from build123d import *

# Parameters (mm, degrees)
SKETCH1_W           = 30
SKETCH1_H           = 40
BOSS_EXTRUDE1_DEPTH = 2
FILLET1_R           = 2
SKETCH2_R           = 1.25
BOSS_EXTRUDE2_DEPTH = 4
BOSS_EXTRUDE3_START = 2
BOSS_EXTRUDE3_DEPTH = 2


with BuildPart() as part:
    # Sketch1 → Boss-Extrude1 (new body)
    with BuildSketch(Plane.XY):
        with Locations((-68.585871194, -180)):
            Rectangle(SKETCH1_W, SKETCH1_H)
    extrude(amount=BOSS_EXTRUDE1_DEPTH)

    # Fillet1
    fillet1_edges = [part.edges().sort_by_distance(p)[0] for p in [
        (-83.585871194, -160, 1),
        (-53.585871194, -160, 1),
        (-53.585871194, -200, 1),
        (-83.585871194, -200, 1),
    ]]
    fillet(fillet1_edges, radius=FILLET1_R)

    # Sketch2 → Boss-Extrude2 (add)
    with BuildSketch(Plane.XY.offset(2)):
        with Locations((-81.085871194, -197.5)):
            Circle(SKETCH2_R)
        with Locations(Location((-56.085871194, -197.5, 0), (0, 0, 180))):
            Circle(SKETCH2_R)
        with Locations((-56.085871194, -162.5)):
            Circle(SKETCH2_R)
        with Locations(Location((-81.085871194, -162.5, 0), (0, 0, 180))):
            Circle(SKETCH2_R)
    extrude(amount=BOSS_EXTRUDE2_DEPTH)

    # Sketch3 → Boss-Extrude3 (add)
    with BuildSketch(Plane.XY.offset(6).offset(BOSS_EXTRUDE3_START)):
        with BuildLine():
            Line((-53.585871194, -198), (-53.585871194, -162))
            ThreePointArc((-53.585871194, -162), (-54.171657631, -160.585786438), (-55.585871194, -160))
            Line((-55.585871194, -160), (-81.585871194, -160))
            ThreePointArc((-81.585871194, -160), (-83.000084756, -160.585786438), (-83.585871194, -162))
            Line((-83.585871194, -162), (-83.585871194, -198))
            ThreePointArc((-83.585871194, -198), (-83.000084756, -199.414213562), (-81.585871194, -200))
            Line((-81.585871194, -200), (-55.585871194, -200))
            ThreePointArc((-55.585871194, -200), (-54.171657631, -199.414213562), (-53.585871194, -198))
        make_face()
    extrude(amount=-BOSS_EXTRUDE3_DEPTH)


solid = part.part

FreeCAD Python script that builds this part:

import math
import FreeCAD as App
import Part
import Sketcher

V = App.Vector
Q = App.Units.Quantity


def edges_at(feature, points):
    """Names of the edges that pass closest to the given points."""
    edges = feature.Shape.Edges
    near = lambda p: min(range(len(edges)), key=lambda i: edges[i].distToShape(Part.Vertex(*p))[0])
    return sorted({f"Edge{near(p) + 1}" for p in points})

doc = App.newDocument("Part")
params = doc.addObject("Spreadsheet::Sheet", "Params")
for row, (alias, value) in enumerate([
    ("sketch1_width", "30 mm"),
    ("sketch1_height", "40 mm"),
    ("pad1_length", "2 mm"),
    ("fillet_radius", "2 mm"),
    ("sketch2_diameter", "2.5 mm"),
    ("pad2_length", "4 mm"),
    ("sketch3_radius", "2 mm"),
    ("sketch3_width", "26 mm"),
    ("sketch3_height", "36 mm"),
    ("pad3_length", "2 mm"),
], start=1):
    params.set(f"A{row}", alias)
    params.set(f"B{row}", "=" + value)
    params.setAlias(f"B{row}", alias)

body = doc.addObject("PartDesign::Body", "Body")

sketch1 = body.newObject("Sketcher::SketchObject", "Sketch")
sketch1.AttachmentSupport = (doc.getObject("XY_Plane"), [""])
sketch1.MapMode = "FlatFace"
sketch1.addGeometry(Part.LineSegment(V(-84, -160, 0), V(-84, -200, 0)), False)
sketch1.addGeometry(Part.LineSegment(V(-84, -200, 0), V(-54, -200, 0)), False)
sketch1.addGeometry(Part.LineSegment(V(-54, -200, 0), V(-54, -160, 0)), False)
sketch1.addGeometry(Part.LineSegment(V(-54, -160, 0), V(-84, -160, 0)), False)
sketch1.addConstraint(Sketcher.Constraint("Coincident", 0, 2, 1, 1))
sketch1.addConstraint(Sketcher.Constraint("Coincident", 1, 2, 2, 1))
sketch1.addConstraint(Sketcher.Constraint("Coincident", 2, 2, 3, 1))
sketch1.addConstraint(Sketcher.Constraint("Coincident", 3, 2, 0, 1))
sketch1.addConstraint(Sketcher.Constraint("Vertical", 0))
sketch1.addConstraint(Sketcher.Constraint("Horizontal", 1))
sketch1.addConstraint(Sketcher.Constraint("Vertical", 2))
sketch1.addConstraint(Sketcher.Constraint("Horizontal", 3))
sketch1.addConstraint(Sketcher.Constraint("DistanceX", 1, 1, 1, 2, Q("30 mm")))
sketch1.addConstraint(Sketcher.Constraint("DistanceY", 0, 2, 0, 1, Q("40 mm")))
sketch1.addConstraint(Sketcher.Constraint("DistanceY", 0, 2, -1, 1, Q("200 mm")))
sketch1.addConstraint(Sketcher.Constraint("DistanceX", 0, 2, -1, 1, Q("83.585871 mm")))
sketch1.setExpression("Constraints[8]", "Params.sketch1_width")
sketch1.setExpression("Constraints[9]", "Params.sketch1_height")
pad1 = body.newObject("PartDesign::Pad", "Pad")
pad1.Profile = sketch1
pad1.setExpression("Length", "Params.pad1_length")
doc.recompute()

fillet = body.newObject("PartDesign::Fillet", "Fillet")
fillet.Base = (pad1, edges_at(pad1, [
    (-83.586, -160, 1),
    (-53.586, -160, 1),
    (-53.586, -200, 1),
    (-83.586, -200, 1),
]))
fillet.setExpression("Radius", "Params.fillet_radius")

sketch2 = body.newObject("Sketcher::SketchObject", "Sketch001")
sketch2.AttachmentSupport = (doc.getObject("XY_Plane"), [""])
sketch2.MapMode = "FlatFace"
sketch2.AttachmentOffset = App.Placement(V(0, 0, 2), App.Rotation())
sketch2.addGeometry(Part.Circle(V(-81.1, -197.5, 0), V(0, 0, 1), 1.2), False)
sketch2.addGeometry(Part.Circle(V(-56.1, -197.5, 0), V(0, 0, 1), 1.2), False)
sketch2.addGeometry(Part.Circle(V(-56.1, -162.5, 0), V(0, 0, 1), 1.2), False)
sketch2.addGeometry(Part.Circle(V(-81.1, -162.5, 0), V(0, 0, 1), 1.2), False)
sketch2.addConstraint(Sketcher.Constraint("Equal", 0, 1))
sketch2.addConstraint(Sketcher.Constraint("Equal", 1, 2))
sketch2.addConstraint(Sketcher.Constraint("Equal", 2, 3))
sketch2.addConstraint(Sketcher.Constraint("Horizontal", 0, 3, 1, 3))
sketch2.addConstraint(Sketcher.Constraint("Horizontal", 2, 3, 3, 3))
sketch2.addConstraint(Sketcher.Constraint("Vertical", 1, 3, 2, 3))
sketch2.addConstraint(Sketcher.Constraint("Vertical", 0, 3, 3, 3))
sketch2.addConstraint(Sketcher.Constraint("Diameter", 0, Q("2.5 mm")))
sketch2.addConstraint(Sketcher.Constraint("DistanceX", 0, 3, 1, 3, Q("25 mm")))
sketch2.addConstraint(Sketcher.Constraint("DistanceY", 1, 3, 2, 3, Q("35 mm")))
sketch2.addConstraint(Sketcher.Constraint("DistanceY", 0, 3, -1, 1, Q("197.5 mm")))
sketch2.addConstraint(Sketcher.Constraint("DistanceX", 0, 3, -1, 1, Q("81.085871 mm")))
sketch2.setExpression("Constraints[7]", "Params.sketch2_diameter")
pad2 = body.newObject("PartDesign::Pad", "Pad001")
pad2.Profile = sketch2
pad2.setExpression("Length", "Params.pad2_length")

sketch3 = body.newObject("Sketcher::SketchObject", "Sketch002")
sketch3.AttachmentSupport = (doc.getObject("XY_Plane"), [""])
sketch3.MapMode = "FlatFace"
sketch3.AttachmentOffset = App.Placement(V(0, 0, 8), App.Rotation())
sketch3.addGeometry(Part.LineSegment(V(-53.6, -198, 0), V(-53.6, -162, 0)), False)
sketch3.addGeometry(Part.ArcOfCircle(Part.Circle(V(-55.6, -162, 0), V(0, 0, 1), 2), math.radians(0), math.radians(90)), False)
sketch3.addGeometry(Part.LineSegment(V(-55.6, -160, 0), V(-81.6, -160, 0)), False)
sketch3.addGeometry(Part.ArcOfCircle(Part.Circle(V(-81.6, -162, 0), V(0, 0, 1), 2), math.radians(90), math.radians(180)), False)
sketch3.addGeometry(Part.LineSegment(V(-83.6, -162, 0), V(-83.6, -198, 0)), False)
sketch3.addGeometry(Part.ArcOfCircle(Part.Circle(V(-81.6, -198, 0), V(0, 0, 1), 2), math.radians(-180), math.radians(-90)), False)
sketch3.addGeometry(Part.LineSegment(V(-81.6, -200, 0), V(-55.6, -200, 0)), False)
sketch3.addGeometry(Part.ArcOfCircle(Part.Circle(V(-55.6, -198, 0), V(0, 0, 1), 2), math.radians(-90), math.radians(0)), False)
sketch3.addConstraint(Sketcher.Constraint("Tangent", 0, 2, 1, 1))
sketch3.addConstraint(Sketcher.Constraint("Tangent", 1, 2, 2, 1))
sketch3.addConstraint(Sketcher.Constraint("Tangent", 2, 2, 3, 1))
sketch3.addConstraint(Sketcher.Constraint("Tangent", 3, 2, 4, 1))
sketch3.addConstraint(Sketcher.Constraint("Tangent", 4, 2, 5, 1))
sketch3.addConstraint(Sketcher.Constraint("Tangent", 5, 2, 6, 1))
sketch3.addConstraint(Sketcher.Constraint("Tangent", 6, 2, 7, 1))
sketch3.addConstraint(Sketcher.Constraint("Tangent", 7, 2, 0, 1))
sketch3.addConstraint(Sketcher.Constraint("Vertical", 0))
sketch3.addConstraint(Sketcher.Constraint("Horizontal", 2))
sketch3.addConstraint(Sketcher.Constraint("Vertical", 4))
sketch3.addConstraint(Sketcher.Constraint("Horizontal", 6))
sketch3.addConstraint(Sketcher.Constraint("Equal", 1, 3))
sketch3.addConstraint(Sketcher.Constraint("Equal", 3, 5))
sketch3.addConstraint(Sketcher.Constraint("Equal", 5, 7))
sketch3.addConstraint(Sketcher.Constraint("Radius", 1, Q("2 mm")))
sketch3.addConstraint(Sketcher.Constraint("DistanceX", 2, 2, 2, 1, Q("26 mm")))
sketch3.addConstraint(Sketcher.Constraint("DistanceY", 0, 1, 0, 2, Q("36 mm")))
sketch3.addConstraint(Sketcher.Constraint("DistanceY", 1, 3, -1, 1, Q("162 mm")))
sketch3.addConstraint(Sketcher.Constraint("DistanceX", 1, 3, -1, 1, Q("55.585871 mm")))
sketch3.setExpression("Constraints[15]", "Params.sketch3_radius")
sketch3.setExpression("Constraints[16]", "Params.sketch3_width")
sketch3.setExpression("Constraints[17]", "Params.sketch3_height")
pad3 = body.newObject("PartDesign::Pad", "Pad002")
pad3.Profile = sketch3
pad3.setExpression("Length", "Params.pad3_length")
pad3.Reversed = True

doc.recompute()
